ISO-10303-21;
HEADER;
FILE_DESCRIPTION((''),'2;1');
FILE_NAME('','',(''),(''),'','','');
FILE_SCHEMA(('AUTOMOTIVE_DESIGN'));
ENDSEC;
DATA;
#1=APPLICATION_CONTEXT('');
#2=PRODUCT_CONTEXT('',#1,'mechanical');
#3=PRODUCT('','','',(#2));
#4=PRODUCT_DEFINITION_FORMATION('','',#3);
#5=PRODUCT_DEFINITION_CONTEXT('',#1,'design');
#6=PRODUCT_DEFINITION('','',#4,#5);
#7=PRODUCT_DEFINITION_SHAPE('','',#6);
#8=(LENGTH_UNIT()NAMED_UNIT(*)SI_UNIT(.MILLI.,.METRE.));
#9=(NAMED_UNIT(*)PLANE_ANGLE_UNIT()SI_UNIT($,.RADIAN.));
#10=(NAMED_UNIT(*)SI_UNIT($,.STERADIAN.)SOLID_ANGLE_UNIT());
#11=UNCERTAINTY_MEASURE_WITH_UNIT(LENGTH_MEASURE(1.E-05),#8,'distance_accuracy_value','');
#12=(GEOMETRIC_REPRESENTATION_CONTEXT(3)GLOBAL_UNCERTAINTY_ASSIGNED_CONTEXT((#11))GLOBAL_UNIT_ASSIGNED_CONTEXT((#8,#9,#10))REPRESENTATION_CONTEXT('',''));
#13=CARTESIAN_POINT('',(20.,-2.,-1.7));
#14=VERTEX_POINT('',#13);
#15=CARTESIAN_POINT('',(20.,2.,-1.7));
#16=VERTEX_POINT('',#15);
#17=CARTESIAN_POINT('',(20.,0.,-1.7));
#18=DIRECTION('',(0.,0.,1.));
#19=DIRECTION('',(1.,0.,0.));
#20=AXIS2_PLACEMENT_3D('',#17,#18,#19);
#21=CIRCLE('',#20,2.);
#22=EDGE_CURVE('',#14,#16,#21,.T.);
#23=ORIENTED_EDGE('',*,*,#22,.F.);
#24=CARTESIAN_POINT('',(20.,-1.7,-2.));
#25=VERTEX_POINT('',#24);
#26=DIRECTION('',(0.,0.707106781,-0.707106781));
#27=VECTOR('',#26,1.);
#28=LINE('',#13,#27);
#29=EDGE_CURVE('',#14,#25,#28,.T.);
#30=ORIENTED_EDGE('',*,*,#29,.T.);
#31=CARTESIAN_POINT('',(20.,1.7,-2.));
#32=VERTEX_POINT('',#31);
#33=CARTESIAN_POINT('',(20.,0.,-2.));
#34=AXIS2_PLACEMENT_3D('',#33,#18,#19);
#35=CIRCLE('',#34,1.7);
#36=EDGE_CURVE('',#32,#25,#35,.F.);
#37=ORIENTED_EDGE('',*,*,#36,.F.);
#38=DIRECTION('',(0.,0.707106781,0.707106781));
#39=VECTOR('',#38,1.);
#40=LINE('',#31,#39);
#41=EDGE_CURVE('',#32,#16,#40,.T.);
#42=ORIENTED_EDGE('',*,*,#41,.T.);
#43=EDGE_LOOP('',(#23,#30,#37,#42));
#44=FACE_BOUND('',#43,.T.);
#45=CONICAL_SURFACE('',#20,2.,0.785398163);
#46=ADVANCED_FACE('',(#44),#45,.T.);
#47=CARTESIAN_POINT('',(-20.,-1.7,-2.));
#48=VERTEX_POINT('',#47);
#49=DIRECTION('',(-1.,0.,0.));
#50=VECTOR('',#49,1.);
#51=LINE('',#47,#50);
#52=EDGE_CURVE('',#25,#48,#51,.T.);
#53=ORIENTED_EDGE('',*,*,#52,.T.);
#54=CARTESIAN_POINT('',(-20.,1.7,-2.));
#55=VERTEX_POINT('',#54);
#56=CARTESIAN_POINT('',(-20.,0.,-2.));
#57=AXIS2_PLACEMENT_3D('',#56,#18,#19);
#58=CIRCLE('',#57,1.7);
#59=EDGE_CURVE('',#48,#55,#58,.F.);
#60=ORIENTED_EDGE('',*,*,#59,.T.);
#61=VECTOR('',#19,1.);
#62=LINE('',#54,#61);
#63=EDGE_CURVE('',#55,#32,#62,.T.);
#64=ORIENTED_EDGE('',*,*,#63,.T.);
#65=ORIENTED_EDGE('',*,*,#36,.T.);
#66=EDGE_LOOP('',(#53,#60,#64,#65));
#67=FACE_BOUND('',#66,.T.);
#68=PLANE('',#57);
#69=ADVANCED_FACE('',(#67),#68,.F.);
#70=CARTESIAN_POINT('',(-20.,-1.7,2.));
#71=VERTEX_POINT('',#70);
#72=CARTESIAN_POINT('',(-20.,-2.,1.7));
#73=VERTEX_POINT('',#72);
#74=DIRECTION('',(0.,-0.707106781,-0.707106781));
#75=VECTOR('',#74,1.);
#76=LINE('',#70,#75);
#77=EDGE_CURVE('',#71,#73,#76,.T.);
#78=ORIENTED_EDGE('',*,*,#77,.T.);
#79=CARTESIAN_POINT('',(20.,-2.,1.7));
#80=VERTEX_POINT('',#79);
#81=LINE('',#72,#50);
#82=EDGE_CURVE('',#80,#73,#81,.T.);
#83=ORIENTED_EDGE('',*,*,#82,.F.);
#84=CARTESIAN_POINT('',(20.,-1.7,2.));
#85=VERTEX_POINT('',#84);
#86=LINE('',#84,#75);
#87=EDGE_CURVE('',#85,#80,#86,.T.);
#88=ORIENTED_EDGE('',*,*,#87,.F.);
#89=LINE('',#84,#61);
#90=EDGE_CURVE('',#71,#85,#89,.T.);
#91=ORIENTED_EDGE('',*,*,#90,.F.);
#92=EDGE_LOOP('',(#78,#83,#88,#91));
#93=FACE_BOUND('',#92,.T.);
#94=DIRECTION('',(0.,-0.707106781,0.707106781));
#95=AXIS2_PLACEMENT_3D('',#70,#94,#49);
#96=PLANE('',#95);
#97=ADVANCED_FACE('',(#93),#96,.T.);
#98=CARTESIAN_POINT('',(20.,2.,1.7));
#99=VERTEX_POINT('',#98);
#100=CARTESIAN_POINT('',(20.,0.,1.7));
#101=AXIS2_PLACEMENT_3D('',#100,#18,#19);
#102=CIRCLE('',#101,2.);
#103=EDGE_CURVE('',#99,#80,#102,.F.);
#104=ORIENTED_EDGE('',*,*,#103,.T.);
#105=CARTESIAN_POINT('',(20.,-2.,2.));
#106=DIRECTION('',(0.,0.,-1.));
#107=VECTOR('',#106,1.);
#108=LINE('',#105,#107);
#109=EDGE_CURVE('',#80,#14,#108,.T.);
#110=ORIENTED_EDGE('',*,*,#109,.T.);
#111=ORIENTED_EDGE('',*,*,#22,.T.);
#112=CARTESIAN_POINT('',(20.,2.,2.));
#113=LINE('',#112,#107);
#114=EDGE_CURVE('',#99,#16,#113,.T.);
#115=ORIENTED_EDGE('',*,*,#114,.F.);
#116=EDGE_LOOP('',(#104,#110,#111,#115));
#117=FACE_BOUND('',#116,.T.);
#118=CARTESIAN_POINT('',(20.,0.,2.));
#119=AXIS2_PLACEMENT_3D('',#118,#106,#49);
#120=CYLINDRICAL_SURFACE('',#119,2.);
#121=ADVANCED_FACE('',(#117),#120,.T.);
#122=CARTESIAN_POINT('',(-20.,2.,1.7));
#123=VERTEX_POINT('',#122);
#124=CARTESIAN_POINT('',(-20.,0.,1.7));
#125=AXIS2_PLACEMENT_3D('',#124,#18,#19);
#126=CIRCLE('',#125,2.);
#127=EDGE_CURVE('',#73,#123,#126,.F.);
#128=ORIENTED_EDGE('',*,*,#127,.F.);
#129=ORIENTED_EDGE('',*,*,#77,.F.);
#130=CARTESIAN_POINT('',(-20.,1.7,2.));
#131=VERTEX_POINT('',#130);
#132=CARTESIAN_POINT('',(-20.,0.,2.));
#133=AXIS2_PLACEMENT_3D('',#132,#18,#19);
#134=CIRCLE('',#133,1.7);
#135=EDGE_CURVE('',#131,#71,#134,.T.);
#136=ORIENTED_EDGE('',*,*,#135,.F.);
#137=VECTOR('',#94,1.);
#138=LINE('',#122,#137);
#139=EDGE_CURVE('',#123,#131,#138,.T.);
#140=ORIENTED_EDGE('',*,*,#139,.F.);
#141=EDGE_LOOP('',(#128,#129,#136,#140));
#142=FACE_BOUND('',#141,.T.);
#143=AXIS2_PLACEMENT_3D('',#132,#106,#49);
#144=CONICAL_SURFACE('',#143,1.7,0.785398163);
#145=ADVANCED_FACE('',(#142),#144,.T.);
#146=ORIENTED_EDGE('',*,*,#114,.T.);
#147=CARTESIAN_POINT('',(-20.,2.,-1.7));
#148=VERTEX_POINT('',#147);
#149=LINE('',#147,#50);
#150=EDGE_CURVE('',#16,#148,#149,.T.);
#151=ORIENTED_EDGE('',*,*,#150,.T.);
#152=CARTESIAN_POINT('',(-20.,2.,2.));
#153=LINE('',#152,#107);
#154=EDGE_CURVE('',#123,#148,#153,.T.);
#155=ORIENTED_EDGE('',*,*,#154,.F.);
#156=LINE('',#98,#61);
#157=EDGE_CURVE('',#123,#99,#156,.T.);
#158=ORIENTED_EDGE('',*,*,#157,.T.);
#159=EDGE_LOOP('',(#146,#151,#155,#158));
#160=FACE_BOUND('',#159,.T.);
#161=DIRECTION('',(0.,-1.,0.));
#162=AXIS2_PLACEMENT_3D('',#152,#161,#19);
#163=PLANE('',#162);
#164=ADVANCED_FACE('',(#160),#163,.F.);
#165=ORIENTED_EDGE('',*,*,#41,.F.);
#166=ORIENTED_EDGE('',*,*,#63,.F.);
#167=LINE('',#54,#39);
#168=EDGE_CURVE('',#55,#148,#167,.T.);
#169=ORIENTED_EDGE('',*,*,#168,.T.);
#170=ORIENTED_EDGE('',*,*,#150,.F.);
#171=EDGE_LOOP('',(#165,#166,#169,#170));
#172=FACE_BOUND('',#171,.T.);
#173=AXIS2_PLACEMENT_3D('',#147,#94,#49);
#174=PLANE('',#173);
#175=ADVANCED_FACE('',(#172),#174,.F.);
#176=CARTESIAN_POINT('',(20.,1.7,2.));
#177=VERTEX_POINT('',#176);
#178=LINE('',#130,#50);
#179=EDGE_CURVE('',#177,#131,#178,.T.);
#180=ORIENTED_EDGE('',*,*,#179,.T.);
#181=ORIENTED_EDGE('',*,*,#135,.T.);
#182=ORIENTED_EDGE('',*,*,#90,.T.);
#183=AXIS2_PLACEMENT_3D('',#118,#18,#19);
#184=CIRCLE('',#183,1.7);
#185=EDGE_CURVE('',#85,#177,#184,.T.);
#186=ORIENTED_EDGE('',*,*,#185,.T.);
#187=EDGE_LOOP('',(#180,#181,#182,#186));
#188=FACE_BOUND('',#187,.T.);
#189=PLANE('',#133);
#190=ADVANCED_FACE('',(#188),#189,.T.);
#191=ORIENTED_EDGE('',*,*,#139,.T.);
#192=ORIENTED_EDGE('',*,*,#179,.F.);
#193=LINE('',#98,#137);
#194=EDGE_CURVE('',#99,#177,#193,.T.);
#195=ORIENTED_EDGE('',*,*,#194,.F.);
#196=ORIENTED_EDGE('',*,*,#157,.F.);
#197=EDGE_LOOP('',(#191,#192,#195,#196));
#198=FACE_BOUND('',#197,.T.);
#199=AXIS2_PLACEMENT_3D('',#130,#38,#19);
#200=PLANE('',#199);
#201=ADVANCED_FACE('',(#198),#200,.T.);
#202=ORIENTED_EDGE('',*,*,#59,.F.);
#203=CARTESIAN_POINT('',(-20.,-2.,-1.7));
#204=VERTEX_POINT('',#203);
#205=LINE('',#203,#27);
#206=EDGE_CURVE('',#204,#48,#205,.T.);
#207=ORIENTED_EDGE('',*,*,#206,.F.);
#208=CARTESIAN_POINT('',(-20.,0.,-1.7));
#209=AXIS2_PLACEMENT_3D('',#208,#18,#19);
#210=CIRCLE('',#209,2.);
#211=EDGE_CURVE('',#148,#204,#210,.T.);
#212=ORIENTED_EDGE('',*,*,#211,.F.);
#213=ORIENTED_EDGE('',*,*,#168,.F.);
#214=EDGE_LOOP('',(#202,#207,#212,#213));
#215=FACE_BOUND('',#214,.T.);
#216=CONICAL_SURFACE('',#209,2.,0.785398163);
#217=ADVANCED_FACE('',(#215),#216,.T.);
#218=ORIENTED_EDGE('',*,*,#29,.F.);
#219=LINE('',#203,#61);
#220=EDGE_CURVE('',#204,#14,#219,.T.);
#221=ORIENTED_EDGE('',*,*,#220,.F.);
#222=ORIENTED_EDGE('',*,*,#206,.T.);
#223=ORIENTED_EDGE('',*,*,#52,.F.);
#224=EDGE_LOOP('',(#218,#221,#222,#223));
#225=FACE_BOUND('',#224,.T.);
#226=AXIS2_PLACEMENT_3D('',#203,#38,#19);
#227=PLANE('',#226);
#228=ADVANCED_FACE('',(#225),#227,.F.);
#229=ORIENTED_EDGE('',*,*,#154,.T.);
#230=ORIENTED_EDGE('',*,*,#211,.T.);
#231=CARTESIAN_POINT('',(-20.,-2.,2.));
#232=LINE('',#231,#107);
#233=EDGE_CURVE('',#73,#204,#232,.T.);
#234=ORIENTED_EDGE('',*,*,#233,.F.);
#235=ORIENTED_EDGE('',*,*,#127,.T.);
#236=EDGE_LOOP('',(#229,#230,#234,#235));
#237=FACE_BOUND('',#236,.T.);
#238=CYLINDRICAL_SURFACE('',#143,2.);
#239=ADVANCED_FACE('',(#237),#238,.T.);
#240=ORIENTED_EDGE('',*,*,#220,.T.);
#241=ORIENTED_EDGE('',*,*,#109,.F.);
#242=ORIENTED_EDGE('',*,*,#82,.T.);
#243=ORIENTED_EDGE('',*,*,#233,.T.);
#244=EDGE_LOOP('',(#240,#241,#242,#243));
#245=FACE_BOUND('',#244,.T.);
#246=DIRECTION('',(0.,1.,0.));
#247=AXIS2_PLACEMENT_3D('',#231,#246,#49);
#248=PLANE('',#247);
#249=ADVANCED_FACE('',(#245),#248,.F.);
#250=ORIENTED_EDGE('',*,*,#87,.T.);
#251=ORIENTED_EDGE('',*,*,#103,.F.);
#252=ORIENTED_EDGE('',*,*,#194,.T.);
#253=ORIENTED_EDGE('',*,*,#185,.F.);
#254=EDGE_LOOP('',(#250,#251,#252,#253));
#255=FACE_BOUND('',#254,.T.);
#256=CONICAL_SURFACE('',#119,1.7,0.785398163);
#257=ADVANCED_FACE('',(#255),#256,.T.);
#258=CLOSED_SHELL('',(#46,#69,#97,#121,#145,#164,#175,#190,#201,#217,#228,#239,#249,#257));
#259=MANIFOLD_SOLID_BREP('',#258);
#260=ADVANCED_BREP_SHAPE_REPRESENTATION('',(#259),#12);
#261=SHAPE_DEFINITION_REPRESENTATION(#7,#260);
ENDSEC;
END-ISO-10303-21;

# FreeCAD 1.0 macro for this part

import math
import FreeCAD as App
import Part
import Sketcher

V = App.Vector
Q = App.Units.Quantity


def edges_at(feature, points):
    """Names of the edges that pass closest to the given points."""
    edges = feature.Shape.Edges
    near = lambda p: min(range(len(edges)), key=lambda i: edges[i].distToShape(Part.Vertex(*p))[0])
    return sorted({f"Edge{near(p) + 1}" for p in points})

doc = App.newDocument("Part")
body = doc.addObject("PartDesign::Body", "Body")

sketch1 = body.newObject("Sketcher::SketchObject", "Sketch")
sketch1.AttachmentSupport = (doc.getObject("XY_Plane"), [""])
sketch1.MapMode = "FlatFace"
sketch1.addGeometry(Part.LineSegment(V(20, 2, 0), V(-20, 2, 0)), False)
sketch1.addGeometry(Part.ArcOfCircle(Part.Circle(V(-20, 0, 0), V(0, 0, 1), 2), math.radians(90), math.radians(270)), False)
sketch1.addGeometry(Part.LineSegment(V(-20, -2, 0), V(20, -2, 0)), False)
sketch1.addGeometry(Part.ArcOfCircle(Part.Circle(V(20, 0, 0), V(0, 0, 1), 2), math.radians(-90), math.radians(90)), False)
sketch1.addConstraint(Sketcher.Constraint("Tangent", 0, 2, 1, 1))
sketch1.addConstraint(Sketcher.Constraint("Tangent", 1, 2, 2, 1))
sketch1.addConstraint(Sketcher.Constraint("Tangent", 2, 2, 3, 1))
sketch1.addConstraint(Sketcher.Constraint("Tangent", 3, 2, 0, 1))
sketch1.addConstraint(Sketcher.Constraint("Horizontal", 0))
sketch1.addConstraint(Sketcher.Constraint("Horizontal", 2))
sketch1.addConstraint(Sketcher.Constraint("Symmetric", 1, 3, 3, 3, -1, 1))
sketch1.addConstraint(Sketcher.Constraint("Radius", 1, Q("2 mm")))
sketch1.addConstraint(Sketcher.Constraint("DistanceX", 0, 2, 0, 1, Q("40 mm")))
pad1 = body.newObject("PartDesign::Pad", "Pad")
pad1.Profile = sketch1
pad1.Length = 4
pad1.Midplane = True
doc.recompute()

chamfer = body.newObject("PartDesign::Chamfer", "Chamfer")
chamfer.Base = (pad1, edges_at(pad1, [
    (22, 0, 2),
    (0, 2, 2),
    (-22, 0, 2),
    (0, 2, -2),
    (22, 0, -2),
    (0, -2, -2),
    (-22, 0, -2),
    (0, -2, 2),
]))
chamfer.Size = 0.3

doc.recompute()
